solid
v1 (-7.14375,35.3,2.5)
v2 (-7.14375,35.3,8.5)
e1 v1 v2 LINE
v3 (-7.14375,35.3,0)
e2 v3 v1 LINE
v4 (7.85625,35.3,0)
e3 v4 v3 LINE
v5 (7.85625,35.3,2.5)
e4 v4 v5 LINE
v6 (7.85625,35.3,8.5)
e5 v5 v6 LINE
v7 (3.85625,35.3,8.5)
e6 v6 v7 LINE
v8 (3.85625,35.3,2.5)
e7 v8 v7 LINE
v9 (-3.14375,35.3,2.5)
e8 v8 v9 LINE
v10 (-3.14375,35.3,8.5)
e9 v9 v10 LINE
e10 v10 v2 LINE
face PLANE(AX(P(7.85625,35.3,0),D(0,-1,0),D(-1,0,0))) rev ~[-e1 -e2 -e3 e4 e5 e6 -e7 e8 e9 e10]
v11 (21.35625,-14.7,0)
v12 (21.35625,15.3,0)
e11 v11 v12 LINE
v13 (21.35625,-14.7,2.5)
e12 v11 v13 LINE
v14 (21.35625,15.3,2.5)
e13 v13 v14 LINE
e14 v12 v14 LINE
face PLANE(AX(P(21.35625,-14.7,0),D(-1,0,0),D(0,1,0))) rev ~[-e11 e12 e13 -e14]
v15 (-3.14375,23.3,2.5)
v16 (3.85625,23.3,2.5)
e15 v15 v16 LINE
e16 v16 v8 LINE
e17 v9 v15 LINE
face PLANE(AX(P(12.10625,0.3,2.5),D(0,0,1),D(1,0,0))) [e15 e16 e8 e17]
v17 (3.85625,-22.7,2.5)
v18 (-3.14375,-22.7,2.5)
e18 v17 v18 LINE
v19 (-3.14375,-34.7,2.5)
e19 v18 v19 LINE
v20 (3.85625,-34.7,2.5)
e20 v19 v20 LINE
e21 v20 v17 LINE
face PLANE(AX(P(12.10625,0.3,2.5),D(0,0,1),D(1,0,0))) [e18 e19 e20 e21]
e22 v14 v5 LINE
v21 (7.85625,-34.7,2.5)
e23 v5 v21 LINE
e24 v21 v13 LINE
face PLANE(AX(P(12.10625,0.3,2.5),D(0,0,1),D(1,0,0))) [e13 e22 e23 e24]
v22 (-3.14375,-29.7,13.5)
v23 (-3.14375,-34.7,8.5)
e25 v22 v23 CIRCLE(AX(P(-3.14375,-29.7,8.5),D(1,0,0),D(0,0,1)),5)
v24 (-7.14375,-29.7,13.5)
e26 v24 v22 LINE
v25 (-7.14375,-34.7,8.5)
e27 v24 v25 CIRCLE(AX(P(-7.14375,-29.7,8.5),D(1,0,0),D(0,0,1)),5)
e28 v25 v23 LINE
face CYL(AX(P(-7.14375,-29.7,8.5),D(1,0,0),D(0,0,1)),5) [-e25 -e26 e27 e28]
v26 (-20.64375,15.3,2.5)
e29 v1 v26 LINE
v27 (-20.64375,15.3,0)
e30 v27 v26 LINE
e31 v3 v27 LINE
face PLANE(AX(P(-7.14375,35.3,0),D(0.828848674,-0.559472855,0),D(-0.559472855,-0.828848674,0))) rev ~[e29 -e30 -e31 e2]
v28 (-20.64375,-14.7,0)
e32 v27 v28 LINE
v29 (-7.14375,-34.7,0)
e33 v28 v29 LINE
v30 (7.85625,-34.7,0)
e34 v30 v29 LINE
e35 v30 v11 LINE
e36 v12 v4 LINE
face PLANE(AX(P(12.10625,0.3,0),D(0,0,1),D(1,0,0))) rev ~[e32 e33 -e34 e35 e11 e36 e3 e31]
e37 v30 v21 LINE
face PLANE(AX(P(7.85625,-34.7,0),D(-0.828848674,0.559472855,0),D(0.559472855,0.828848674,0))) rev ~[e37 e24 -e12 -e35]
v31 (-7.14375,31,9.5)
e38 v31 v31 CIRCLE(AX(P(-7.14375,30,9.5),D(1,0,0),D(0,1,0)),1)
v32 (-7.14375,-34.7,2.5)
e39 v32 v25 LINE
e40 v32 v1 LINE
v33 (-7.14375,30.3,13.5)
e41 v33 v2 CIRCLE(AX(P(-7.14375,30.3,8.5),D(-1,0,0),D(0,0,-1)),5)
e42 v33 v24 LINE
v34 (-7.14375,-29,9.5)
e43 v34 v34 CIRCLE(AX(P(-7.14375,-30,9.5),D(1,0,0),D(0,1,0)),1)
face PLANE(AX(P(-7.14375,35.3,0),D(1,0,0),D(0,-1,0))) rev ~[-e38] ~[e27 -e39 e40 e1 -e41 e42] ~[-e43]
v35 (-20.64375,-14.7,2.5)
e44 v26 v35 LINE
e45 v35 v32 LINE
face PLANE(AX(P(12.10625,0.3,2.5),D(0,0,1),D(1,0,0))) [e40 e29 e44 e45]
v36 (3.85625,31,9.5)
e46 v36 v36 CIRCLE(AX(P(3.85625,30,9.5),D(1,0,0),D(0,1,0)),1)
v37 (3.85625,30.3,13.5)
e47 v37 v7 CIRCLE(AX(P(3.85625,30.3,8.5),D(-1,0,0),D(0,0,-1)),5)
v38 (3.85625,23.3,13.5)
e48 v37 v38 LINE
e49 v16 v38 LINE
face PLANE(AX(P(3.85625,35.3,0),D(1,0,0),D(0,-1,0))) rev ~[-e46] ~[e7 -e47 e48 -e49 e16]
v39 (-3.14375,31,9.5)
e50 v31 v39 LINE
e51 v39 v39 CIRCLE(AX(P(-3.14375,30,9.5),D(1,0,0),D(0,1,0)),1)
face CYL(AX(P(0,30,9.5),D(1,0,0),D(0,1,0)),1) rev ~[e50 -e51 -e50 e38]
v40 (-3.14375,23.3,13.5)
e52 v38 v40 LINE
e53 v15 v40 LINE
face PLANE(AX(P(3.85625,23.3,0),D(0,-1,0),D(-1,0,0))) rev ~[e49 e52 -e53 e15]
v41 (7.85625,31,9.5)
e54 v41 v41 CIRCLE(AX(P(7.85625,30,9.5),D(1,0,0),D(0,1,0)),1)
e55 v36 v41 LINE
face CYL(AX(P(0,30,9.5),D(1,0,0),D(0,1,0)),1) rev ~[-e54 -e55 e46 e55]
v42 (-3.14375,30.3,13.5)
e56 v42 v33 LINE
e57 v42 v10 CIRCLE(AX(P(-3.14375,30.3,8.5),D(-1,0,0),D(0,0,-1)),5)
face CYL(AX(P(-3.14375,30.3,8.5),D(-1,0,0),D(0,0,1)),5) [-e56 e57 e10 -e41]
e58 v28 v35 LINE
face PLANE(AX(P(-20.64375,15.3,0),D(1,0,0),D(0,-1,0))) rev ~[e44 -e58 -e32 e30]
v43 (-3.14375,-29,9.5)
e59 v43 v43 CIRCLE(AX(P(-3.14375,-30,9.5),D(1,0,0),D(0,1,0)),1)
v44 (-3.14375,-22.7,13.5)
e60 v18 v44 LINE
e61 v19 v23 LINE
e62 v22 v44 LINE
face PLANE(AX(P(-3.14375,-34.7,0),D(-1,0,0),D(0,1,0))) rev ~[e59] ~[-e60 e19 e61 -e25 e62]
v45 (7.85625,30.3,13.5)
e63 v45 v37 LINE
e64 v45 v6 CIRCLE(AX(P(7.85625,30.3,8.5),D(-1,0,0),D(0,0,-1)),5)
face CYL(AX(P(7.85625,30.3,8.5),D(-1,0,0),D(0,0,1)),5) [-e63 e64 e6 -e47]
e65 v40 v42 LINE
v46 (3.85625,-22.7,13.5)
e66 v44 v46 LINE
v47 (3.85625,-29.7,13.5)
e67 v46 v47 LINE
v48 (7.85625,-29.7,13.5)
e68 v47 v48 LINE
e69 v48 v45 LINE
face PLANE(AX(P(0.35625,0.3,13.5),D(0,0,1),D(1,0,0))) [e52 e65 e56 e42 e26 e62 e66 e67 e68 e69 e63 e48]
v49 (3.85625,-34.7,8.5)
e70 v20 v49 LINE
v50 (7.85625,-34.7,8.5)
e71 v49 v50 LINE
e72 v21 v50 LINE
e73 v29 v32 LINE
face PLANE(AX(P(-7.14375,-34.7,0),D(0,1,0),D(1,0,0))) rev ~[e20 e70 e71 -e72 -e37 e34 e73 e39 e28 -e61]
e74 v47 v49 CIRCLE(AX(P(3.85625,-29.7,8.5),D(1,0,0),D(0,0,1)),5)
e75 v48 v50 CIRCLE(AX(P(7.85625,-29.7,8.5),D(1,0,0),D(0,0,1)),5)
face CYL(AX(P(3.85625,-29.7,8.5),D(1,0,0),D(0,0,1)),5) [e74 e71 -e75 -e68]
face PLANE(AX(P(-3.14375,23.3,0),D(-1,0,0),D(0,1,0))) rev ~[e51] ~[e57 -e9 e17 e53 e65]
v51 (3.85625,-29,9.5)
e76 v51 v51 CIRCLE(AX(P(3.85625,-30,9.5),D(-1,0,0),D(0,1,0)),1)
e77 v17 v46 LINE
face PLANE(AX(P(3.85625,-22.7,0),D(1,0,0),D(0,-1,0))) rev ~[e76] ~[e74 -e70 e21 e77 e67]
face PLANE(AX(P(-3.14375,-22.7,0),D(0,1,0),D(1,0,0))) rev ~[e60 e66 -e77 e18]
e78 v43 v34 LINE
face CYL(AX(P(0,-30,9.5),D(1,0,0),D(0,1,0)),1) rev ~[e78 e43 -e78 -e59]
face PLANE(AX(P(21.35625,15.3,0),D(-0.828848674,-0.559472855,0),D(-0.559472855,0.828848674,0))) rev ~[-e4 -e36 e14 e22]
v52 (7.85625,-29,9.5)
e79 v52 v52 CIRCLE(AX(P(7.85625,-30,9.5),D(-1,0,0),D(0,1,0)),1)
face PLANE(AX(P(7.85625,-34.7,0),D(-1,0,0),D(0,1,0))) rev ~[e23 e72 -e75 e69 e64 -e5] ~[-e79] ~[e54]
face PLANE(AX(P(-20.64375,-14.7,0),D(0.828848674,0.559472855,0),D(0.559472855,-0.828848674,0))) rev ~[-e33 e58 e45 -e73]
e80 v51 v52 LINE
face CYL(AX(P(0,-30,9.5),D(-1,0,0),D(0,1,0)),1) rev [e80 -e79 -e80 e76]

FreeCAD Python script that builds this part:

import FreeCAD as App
import Part
import Sketcher
from FreeCAD import Vector


def edges_at(feature, points):
    """Names of the edges that pass closest to the given points."""
    edges = feature.Shape.Edges
    near = lambda p: min(range(len(edges)), key=lambda i: edges[i].distToShape(Part.Vertex(*p))[0])
    return sorted({f"Edge{near(p) + 1}" for p in points})

doc = App.newDocument("Part")
body = doc.addObject("PartDesign::Body", "Body")

sketch1 = doc.addObject("Sketcher::SketchObject", "Sketch")
body.addObject(sketch1)
sketch1.AttachmentSupport = (doc.XY_Plane, [""])
sketch1.MapMode = "FlatFace"
sketch1.addGeometry([
    Part.LineSegment(Vector(21, 15, 0), Vector(8, 35, 0)),
    Part.LineSegment(Vector(8, 35, 0), Vector(-7, 35, 0)),
    Part.LineSegment(Vector(-7, 35, 0), Vector(-21, 15, 0)),
    Part.LineSegment(Vector(-21, 15, 0), Vector(-21, -15, 0)),
    Part.LineSegment(Vector(-21, -15, 0), Vector(-7, -35, 0)),
    Part.LineSegment(Vector(-7, -35, 0), Vector(8, -35, 0)),
    Part.LineSegment(Vector(8, -35, 0), Vector(21, -15, 0)),
    Part.LineSegment(Vector(21, -15, 0), Vector(21, 15, 0)),
], False)
sketch1.addConstraint([
    Sketcher.Constraint("Coincident", 0, 2, 1, 1),
    Sketcher.Constraint("Coincident", 1, 2, 2, 1),
    Sketcher.Constraint("Coincident", 2, 2, 3, 1),
    Sketcher.Constraint("Coincident", 3, 2, 4, 1),
    Sketcher.Constraint("Coincident", 4, 2, 5, 1),
    Sketcher.Constraint("Coincident", 5, 2, 6, 1),
    Sketcher.Constraint("Coincident", 6, 2, 7, 1),
    Sketcher.Constraint("Coincident", 7, 2, 0, 1),
    Sketcher.Constraint("Horizontal", 1),
    Sketcher.Constraint("Vertical", 3),
    Sketcher.Constraint("Horizontal", 5),
    Sketcher.Constraint("Vertical", 7),
    Sketcher.Constraint("Parallel", 0, 4),
    Sketcher.Constraint("Parallel", 2, 6),
    Sketcher.Constraint("Horizontal", 3, 2, 6, 2),
    Sketcher.Constraint("Horizontal", 2, 2, 7, 2),
    Sketcher.Constraint("Vertical", 1, 2, 4, 2),
    Sketcher.Constraint("Vertical", 0, 2, 5, 2),
    Sketcher.Constraint("DistanceX", 1, 2, 1, 1, 15.0),
    Sketcher.Constraint("DistanceY", 3, 2, 3, 1, 30.0),
    Sketcher.Constraint("DistanceY", 2, 2, 1, 2, 20.0),
    Sketcher.Constraint("DistanceX", 3, 2, 6, 2, 42.0),
    Sketcher.Constraint("DistanceY", -1, 1, 0, 2, 35.3),
    Sketcher.Constraint("DistanceX", -1, 1, 0, 2, 7.85625),
])
pad1 = doc.addObject("PartDesign::Pad", "Pad")
body.addObject(pad1)
pad1.Profile = sketch1
pad1.Length = 2.5

sketch2 = doc.addObject("Sketcher::SketchObject", "Sketch001")
body.addObject(sketch2)
sketch2.AttachmentSupport = (doc.XY_Plane, [""])
sketch2.MapMode = "FlatFace"
sketch2.addGeometry([
    Part.LineSegment(Vector(-3.1, 35.3, 0), Vector(-7.1, 35.3, 0)),
    Part.LineSegment(Vector(-7.1, 35.3, 0), Vector(-7.1, -34.7, 0)),
    Part.LineSegment(Vector(-7.1, -34.7, 0), Vector(-3.1, -34.7, 0)),
    Part.LineSegment(Vector(-3.1, -34.7, 0), Vector(-3.1, -22.7, 0)),
    Part.LineSegment(Vector(-3.1, -22.7, 0), Vector(3.9, -22.7, 0)),
    Part.LineSegment(Vector(3.9, -22.7, 0), Vector(3.9, -34.7, 0)),
    Part.LineSegment(Vector(3.9, -34.7, 0), Vector(7.9, -34.7, 0)),
    Part.LineSegment(Vector(7.9, -34.7, 0), Vector(7.9, 35.3, 0)),
    Part.LineSegment(Vector(7.9, 35.3, 0), Vector(3.9, 35.3, 0)),
    Part.LineSegment(Vector(3.9, 35.3, 0), Vector(3.9, 23.3, 0)),
    Part.LineSegment(Vector(3.9, 23.3, 0), Vector(-3.1, 23.3, 0)),
    Part.LineSegment(Vector(-3.1, 23.3, 0), Vector(-3.1, 35.3, 0)),
], False)
sketch2.addConstraint([
    Sketcher.Constraint("Coincident", 0, 2, 1, 1),
    Sketcher.Constraint("Coincident", 1, 2, 2, 1),
    Sketcher.Constraint("Coincident", 2, 2, 3, 1),
    Sketcher.Constraint("Coincident", 3, 2, 4, 1),
    Sketcher.Constraint("Coincident", 4, 2, 5, 1),
    Sketcher.Constraint("Coincident", 5, 2, 6, 1),
    Sketcher.Constraint("Coincident", 6, 2, 7, 1),
    Sketcher.Constraint("Coincident", 7, 2, 8, 1),
    Sketcher.Constraint("Coincident", 8, 2, 9, 1),
    Sketcher.Constraint("Coincident", 9, 2, 10, 1),
    Sketcher.Constraint("Coincident", 10, 2, 11, 1),
    Sketcher.Constraint("Coincident", 11, 2, 0, 1),
    Sketcher.Constraint("Horizontal", 0),
    Sketcher.Constraint("Vertical", 1),
    Sketcher.Constraint("Horizontal", 2),
    Sketcher.Constraint("Vertical", 3),
    Sketcher.Constraint("Horizontal", 4),
    Sketcher.Constraint("Vertical", 5),
    Sketcher.Constraint("Horizontal", 6),
    Sketcher.Constraint("Vertical", 7),
    Sketcher.Constraint("Horizontal", 8),
    Sketcher.Constraint("Vertical", 9),
    Sketcher.Constraint("Horizontal", 10),
    Sketcher.Constraint("Vertical", 11),
    Sketcher.Constraint("Horizontal", 2, 2, 5, 2),
    Sketcher.Constraint("Horizontal", 0, 2, 7, 2),
    Sketcher.Constraint("Vertical", 5, 2, 8, 2),
    Sketcher.Constraint("Vertical", 3, 2, 10, 2),
    Sketcher.Constraint("Equal", 2, 6),
    Sketcher.Constraint("Equal", 5, 9),
    Sketcher.Constraint("DistanceX", 0, 2, 0, 1, 4.0),
    Sketcher.Constraint("DistanceX", 4, 1, 4, 2, 7.0),
    Sketcher.Constraint("DistanceY", 1, 2, 1, 1, 70.0),
    Sketcher.Constraint("DistanceY", 3, 1, 3, 2, 12.0),
    Sketcher.Constraint("DistanceY", -1, 1, 0, 2, 35.3),
    Sketcher.Constraint("DistanceX", 0, 2, -1, 1, 7.14375),
])
pad2 = doc.addObject("PartDesign::Pad", "Pad001")
body.addObject(pad2)
pad2.Profile = sketch2
pad2.Length = 13.5

sketch3 = doc.addObject("Sketcher::SketchObject", "Sketch002")
body.addObject(sketch3)
sketch3.AttachmentSupport = (doc.YZ_Plane, [""])
sketch3.MapMode = "FlatFace"
sketch3.addGeometry([
    Part.Circle(Vector(-30, 9.5, 0), Vector(0, 0, 1), 1),
    Part.Circle(Vector(30, 9.5, 0), Vector(0, 0, 1), 1),
], False)
sketch3.addConstraint([
    Sketcher.Constraint("Equal", 0, 1),
    Sketcher.Constraint("Symmetric", 0, 3, 1, 3, -2),
    Sketcher.Constraint("Diameter", 0, 2.0),
    Sketcher.Constraint("DistanceX", 0, 3, -1, 1, 30.0),
    Sketcher.Constraint("DistanceY", -1, 1, 0, 3, 9.5),
])
pocket1 = doc.addObject("PartDesign::Pocket", "Pocket")
body.addObject(pocket1)
pocket1.Profile = sketch3
pocket1.Length = 25
pocket1.Midplane = True
doc.recompute()

fillet = doc.addObject("PartDesign::Fillet", "Fillet")
body.addObject(fillet)
fillet.Base = (pocket1, edges_at(pocket1, [(-5.144, -34.7, 13.5), (5.856, -34.7, 13.5)]))
fillet.Radius = 5
doc.recompute()

fillet2 = doc.addObject("PartDesign::Fillet", "Fillet001")
body.addObject(fillet2)
fillet2.Base = (fillet, edges_at(fillet, [(5.856, 35.3, 13.5), (-5.144, 35.3, 13.5)]))
fillet2.Radius = 5

doc.recompute()
